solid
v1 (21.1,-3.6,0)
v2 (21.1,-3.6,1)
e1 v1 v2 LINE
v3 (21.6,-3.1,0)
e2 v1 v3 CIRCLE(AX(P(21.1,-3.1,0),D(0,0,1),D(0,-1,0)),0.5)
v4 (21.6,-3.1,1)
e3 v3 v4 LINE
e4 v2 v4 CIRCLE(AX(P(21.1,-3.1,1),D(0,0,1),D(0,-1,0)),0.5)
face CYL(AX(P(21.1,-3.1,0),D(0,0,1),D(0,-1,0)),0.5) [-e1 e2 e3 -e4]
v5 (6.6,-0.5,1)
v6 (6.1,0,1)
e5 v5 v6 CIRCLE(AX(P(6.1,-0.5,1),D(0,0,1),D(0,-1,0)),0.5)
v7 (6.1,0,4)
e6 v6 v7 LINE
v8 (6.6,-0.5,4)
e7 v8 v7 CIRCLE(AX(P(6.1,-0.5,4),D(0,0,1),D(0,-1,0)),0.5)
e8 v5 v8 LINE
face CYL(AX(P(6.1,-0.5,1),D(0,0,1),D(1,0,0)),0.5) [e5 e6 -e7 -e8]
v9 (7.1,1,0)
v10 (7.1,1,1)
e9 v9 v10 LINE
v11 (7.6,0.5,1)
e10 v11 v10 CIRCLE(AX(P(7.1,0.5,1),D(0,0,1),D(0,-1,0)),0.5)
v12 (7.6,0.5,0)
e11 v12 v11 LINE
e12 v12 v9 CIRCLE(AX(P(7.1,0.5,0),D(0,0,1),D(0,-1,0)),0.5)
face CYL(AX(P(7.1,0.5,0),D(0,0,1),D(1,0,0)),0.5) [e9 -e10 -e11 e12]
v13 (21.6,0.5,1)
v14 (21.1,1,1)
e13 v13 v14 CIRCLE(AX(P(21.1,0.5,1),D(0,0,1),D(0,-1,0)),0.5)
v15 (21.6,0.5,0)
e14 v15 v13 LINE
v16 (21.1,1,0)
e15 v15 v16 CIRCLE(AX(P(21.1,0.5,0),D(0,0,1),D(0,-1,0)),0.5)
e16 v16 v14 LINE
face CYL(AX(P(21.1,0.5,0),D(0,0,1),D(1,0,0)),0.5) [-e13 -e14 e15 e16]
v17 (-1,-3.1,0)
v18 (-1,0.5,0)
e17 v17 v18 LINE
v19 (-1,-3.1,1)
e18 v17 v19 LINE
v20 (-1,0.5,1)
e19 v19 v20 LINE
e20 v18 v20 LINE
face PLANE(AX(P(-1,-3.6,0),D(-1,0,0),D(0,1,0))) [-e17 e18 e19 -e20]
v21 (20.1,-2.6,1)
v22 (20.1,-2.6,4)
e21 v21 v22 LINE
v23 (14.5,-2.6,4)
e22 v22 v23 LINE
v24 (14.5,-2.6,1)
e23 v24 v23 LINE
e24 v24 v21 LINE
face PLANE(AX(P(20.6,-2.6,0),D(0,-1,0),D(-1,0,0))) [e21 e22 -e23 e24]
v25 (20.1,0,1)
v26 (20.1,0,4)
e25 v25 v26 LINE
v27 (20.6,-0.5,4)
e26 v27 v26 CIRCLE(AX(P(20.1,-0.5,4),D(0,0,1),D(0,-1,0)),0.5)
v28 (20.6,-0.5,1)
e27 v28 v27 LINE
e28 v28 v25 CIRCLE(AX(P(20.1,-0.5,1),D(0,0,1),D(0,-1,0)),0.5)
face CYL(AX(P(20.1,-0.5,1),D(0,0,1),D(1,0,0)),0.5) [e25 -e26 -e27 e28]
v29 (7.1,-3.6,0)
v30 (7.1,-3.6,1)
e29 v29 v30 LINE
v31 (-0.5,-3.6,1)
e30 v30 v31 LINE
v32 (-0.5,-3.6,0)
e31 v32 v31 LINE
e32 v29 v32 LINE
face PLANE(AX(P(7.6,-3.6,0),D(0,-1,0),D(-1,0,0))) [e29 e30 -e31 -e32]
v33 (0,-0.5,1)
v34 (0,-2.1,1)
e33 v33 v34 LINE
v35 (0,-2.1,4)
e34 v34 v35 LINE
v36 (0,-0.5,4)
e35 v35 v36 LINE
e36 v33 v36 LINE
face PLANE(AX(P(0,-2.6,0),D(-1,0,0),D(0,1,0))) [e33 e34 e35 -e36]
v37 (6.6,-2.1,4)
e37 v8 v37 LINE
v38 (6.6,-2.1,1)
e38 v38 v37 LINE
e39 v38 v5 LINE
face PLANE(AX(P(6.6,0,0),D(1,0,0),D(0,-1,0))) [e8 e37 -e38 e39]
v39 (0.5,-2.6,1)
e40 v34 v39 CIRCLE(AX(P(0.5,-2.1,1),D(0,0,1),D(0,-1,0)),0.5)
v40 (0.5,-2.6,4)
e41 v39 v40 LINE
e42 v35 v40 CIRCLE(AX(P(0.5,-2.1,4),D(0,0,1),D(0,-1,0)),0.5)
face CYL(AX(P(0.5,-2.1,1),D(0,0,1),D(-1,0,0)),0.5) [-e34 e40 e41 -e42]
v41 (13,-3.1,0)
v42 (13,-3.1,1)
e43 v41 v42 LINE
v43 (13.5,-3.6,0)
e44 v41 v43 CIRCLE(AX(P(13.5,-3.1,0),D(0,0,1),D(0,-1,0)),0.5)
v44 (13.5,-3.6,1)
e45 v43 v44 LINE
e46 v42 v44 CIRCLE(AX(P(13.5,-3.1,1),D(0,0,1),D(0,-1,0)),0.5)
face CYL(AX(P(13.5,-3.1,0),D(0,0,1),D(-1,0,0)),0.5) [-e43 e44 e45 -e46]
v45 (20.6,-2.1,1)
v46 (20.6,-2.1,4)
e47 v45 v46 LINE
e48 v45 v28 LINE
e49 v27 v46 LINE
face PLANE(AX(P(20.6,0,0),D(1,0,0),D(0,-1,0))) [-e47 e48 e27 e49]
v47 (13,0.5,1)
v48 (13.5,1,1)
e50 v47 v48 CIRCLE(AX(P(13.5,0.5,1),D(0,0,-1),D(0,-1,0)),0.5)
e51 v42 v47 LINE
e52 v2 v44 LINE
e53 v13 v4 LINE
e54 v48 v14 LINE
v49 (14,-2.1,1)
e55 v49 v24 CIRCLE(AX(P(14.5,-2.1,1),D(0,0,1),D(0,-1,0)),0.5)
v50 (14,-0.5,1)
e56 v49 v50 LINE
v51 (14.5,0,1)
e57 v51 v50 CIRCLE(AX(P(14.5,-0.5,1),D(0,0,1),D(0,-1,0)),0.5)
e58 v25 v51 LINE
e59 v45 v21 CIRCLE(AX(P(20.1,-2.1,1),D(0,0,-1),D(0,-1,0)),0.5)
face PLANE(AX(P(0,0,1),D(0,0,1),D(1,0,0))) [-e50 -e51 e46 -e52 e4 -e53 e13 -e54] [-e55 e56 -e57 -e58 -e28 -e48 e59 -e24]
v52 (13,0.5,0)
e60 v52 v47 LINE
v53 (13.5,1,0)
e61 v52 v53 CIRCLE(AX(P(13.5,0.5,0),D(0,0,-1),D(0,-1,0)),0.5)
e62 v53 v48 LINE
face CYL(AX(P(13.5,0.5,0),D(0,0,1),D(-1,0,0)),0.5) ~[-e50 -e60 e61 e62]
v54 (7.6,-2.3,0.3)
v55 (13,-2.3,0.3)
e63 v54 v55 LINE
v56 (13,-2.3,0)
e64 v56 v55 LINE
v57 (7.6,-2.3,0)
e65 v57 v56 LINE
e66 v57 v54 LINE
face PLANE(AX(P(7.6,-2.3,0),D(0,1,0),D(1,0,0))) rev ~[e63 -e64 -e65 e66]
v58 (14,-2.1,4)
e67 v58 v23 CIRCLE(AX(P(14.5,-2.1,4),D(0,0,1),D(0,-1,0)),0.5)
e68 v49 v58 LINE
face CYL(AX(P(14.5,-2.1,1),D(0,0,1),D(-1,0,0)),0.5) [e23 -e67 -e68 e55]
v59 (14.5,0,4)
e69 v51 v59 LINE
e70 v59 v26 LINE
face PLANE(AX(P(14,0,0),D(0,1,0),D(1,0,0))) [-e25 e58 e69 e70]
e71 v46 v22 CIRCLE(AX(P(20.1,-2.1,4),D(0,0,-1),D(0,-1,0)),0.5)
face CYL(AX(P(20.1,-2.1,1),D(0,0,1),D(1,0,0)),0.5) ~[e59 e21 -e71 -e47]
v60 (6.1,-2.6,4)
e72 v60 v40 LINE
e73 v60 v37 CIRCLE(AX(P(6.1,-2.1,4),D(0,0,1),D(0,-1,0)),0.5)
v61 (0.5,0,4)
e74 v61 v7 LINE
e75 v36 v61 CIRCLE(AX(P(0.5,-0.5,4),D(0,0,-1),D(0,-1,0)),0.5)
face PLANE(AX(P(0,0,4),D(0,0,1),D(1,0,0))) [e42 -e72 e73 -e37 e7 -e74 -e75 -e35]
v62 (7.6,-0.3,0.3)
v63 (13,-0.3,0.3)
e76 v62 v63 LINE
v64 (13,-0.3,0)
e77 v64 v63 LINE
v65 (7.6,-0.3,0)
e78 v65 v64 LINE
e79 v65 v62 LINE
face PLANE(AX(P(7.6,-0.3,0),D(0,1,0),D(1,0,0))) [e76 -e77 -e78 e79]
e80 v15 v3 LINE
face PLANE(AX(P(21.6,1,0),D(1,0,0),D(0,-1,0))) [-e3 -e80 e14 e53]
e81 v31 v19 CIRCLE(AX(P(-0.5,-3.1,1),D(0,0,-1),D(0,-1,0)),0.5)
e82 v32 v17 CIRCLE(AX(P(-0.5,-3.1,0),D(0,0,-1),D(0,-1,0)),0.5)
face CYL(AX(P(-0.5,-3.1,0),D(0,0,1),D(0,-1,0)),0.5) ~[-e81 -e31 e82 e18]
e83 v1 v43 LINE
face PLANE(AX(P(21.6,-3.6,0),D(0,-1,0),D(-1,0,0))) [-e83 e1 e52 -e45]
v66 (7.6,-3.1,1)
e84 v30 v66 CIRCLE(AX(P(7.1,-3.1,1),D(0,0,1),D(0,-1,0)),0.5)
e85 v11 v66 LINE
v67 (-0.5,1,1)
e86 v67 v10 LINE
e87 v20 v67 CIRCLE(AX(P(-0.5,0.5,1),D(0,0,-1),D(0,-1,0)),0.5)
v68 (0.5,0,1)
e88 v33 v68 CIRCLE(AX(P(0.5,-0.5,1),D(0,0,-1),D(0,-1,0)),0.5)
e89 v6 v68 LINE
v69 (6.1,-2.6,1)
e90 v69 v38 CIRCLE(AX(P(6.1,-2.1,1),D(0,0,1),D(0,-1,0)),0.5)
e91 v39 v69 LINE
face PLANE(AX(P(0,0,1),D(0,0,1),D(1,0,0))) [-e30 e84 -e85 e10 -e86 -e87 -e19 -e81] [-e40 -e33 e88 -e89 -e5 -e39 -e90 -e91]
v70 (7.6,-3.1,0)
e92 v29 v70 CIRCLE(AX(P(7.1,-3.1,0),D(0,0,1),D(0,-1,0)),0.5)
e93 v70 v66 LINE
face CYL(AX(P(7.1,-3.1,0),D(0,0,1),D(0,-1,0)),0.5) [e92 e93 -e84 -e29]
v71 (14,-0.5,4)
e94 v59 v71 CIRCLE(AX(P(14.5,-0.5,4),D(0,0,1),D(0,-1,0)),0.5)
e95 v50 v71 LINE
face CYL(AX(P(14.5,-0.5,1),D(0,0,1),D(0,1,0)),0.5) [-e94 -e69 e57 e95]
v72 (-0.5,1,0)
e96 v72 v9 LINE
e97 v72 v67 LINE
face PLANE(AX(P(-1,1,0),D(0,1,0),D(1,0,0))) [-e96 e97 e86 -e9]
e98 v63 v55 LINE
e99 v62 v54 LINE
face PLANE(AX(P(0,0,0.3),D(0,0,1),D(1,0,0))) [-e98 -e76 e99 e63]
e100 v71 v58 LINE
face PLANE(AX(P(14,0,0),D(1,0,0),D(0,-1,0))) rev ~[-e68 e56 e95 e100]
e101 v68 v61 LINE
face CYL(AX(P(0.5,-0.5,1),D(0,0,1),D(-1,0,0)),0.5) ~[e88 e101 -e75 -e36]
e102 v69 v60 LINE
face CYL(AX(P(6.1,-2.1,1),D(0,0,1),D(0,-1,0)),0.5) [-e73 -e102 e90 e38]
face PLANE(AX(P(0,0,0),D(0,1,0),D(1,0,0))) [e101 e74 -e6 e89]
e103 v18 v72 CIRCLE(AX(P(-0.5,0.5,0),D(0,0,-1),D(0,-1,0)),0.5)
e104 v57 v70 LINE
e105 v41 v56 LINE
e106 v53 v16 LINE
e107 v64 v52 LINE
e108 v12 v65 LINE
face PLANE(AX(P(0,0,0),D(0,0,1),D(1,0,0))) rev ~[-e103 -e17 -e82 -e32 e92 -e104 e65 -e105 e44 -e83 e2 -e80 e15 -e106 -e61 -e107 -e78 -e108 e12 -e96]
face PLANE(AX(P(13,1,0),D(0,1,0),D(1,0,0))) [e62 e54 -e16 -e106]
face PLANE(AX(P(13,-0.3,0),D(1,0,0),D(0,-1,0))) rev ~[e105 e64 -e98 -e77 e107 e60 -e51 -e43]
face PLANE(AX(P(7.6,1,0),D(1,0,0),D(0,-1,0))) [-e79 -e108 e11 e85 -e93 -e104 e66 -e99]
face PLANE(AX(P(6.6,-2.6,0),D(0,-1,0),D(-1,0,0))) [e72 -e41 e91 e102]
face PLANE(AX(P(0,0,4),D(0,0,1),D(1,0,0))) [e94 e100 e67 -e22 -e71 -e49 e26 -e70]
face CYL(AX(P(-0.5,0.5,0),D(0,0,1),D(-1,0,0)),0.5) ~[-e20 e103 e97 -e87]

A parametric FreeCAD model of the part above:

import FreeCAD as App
import Part
import Sketcher

V = App.Vector


def edges_at(feature, points):
    """Names of the edges that pass closest to the given points."""
    edges = feature.Shape.Edges
    near = lambda p: min(range(len(edges)), key=lambda i: edges[i].distToShape(Part.Vertex(*p))[0])
    return sorted({f"Edge{near(p) + 1}" for p in points})


def add_polygon(sketch, points):
    """Adds a closed chain of lines whose ends are joined by coincident constraints."""
    first, n = sketch.GeometryCount, len(points)
    for a, b in zip(points, points[1:] + points[:1]):
        sketch.addGeometry(Part.LineSegment(App.Vector(*a, 0), App.Vector(*b, 0)), False)
    for i in range(n):
        sketch.addConstraint(Sketcher.Constraint("Coincident", first + i, 2, first + (i + 1) % n, 1))

doc = App.newDocument("Part")
body = doc.addObject("PartDesign::Body", "Body")
body.AllowCompound = True

# Sketch on XY plane
sketch1 = body.newObject("Sketcher::SketchObject", "Sketch")
sketch1.AttachmentSupport = (doc.getObject("XY_Plane"), [""])
sketch1.MapMode = "FlatFace"
add_polygon(sketch1, [(13, -3.6), (21.6, -3.6), (21.6, 1), (13, 1)])  # lines 0-3
add_polygon(sketch1, [(-1, -3.6), (7.6, -3.6), (7.6, 1), (-1, 1)])  # lines 4-7
sketch1.addConstraint([
    Sketcher.Constraint("Horizontal", 0),
    Sketcher.Constraint("Vertical", 1),
    Sketcher.Constraint("Horizontal", 2),
    Sketcher.Constraint("Vertical", 3),
    Sketcher.Constraint("Horizontal", 4),
    Sketcher.Constraint("Vertical", 5),
    Sketcher.Constraint("Horizontal", 6),
    Sketcher.Constraint("Vertical", 7),
    Sketcher.Constraint("Horizontal", 3, 2, 4, 2),
    Sketcher.Constraint("Horizontal", 2, 2, 5, 2),
    Sketcher.Constraint("Equal", 2, 4),
    Sketcher.Constraint("DistanceY", -1, 1, 1, 2, 1.0),
    Sketcher.Constraint("DistanceX", 6, 2, -1, 1, 1.0),
    Sketcher.Constraint("DistanceX", 4, 2, 3, 2, 5.4),
    Sketcher.Constraint("DistanceX", 0, 1, 0, 2, 8.6),
    Sketcher.Constraint("DistanceY", 1, 1, 1, 2, 4.6),
])
pad1 = body.newObject("PartDesign::Pad", "Pad")
pad1.Profile = sketch1
pad1.Length = 1

# Sketch on XY plane
sketch2 = body.newObject("Sketcher::SketchObject", "Sketch001")
sketch2.AttachmentSupport = (doc.getObject("XY_Plane"), [""])
sketch2.MapMode = "FlatFace"
add_polygon(sketch2, [(7.6, -0.3), (7.6, -2.3), (13, -2.3), (13, -0.3)])  # lines 0-3
sketch2.addConstraint([
    Sketcher.Constraint("Vertical", 0),
    Sketcher.Constraint("Horizontal", 1),
    Sketcher.Constraint("Vertical", 2),
    Sketcher.Constraint("Horizontal", 3),
    Sketcher.Constraint("DistanceY", 0, 2, 0, 1, 2.0),
    Sketcher.Constraint("DistanceX", 1, 1, 1, 2, 5.4),
    Sketcher.Constraint("DistanceY", 2, 2, -1, 1, 0.3),
    Sketcher.Constraint("DistanceX", -1, 1, 1, 2, 13.0),
])
pad2 = body.newObject("PartDesign::Pad", "Pad001")
pad2.Profile = sketch2
pad2.Length = 0.3

# Sketch on XY plane
sketch3 = body.newObject("Sketcher::SketchObject", "Sketch002")
sketch3.AttachmentSupport = (doc.getObject("XY_Plane"), [""])
sketch3.MapMode = "FlatFace"
add_polygon(sketch3, [(20.6, -2.6), (20.6, 0), (14, 0), (14, -2.6)])  # lines 0-3
add_polygon(sketch3, [(0, 0), (0, -2.6), (6.6, -2.6), (6.6, 0)])  # lines 4-7
sketch3.addConstraint([
    Sketcher.Constraint("Vertical", 0),
    Sketcher.Constraint("Horizontal", 1),
    Sketcher.Constraint("Vertical", 2),
    Sketcher.Constraint("Horizontal", 3),
    Sketcher.Constraint("Vertical", 4),
    Sketcher.Constraint("Horizontal", 5),
    Sketcher.Constraint("Vertical", 6),
    Sketcher.Constraint("Horizontal", 7),
    Sketcher.Constraint("Coincident", 7, 2, -1, 1),
    Sketcher.Constraint("PointOnObject", 0, 2, -1),
    Sketcher.Constraint("Horizontal", 3, 2, 4, 2),
    Sketcher.Constraint("Equal", 3, 5),
    Sketcher.Constraint("DistanceX", 1, 2, 1, 1, 6.6),
    Sketcher.Constraint("DistanceY", 0, 1, 0, 2, 2.6),
    Sketcher.Constraint("DistanceX", -1, 1, 1, 2, 14.0),
])
pad3 = body.newObject("PartDesign::Pad", "Pad002")
pad3.Profile = sketch3
pad3.Length = 4
doc.recompute()

fillet = body.newObject("PartDesign::Fillet", "Fillet")
fillet.Base = (pad3, edges_at(pad3, [
    (6.6, -2.6, 2.5),
    (6.6, 0, 2.5),
    (0, 0, 2.5),
    (0, -2.6, 2.5),
    (-1, -3.6, 0.5),
    (-1, 1, 0.5),
    (7.6, 1, 0.5),
    (7.6, -3.6, 0.5),
    (14, -2.6, 2.5),
    (13, -3.6, 0.5),
    (13, 1, 0.5),
    (21.6, -3.6, 0.5),
    (21.6, 1, 0.5),
    (20.6, 0, 2.5),
    (20.6, -2.6, 2.5),
    (14, 0, 2.5),
]))
fillet.Radius = 0.5

doc.recompute()
